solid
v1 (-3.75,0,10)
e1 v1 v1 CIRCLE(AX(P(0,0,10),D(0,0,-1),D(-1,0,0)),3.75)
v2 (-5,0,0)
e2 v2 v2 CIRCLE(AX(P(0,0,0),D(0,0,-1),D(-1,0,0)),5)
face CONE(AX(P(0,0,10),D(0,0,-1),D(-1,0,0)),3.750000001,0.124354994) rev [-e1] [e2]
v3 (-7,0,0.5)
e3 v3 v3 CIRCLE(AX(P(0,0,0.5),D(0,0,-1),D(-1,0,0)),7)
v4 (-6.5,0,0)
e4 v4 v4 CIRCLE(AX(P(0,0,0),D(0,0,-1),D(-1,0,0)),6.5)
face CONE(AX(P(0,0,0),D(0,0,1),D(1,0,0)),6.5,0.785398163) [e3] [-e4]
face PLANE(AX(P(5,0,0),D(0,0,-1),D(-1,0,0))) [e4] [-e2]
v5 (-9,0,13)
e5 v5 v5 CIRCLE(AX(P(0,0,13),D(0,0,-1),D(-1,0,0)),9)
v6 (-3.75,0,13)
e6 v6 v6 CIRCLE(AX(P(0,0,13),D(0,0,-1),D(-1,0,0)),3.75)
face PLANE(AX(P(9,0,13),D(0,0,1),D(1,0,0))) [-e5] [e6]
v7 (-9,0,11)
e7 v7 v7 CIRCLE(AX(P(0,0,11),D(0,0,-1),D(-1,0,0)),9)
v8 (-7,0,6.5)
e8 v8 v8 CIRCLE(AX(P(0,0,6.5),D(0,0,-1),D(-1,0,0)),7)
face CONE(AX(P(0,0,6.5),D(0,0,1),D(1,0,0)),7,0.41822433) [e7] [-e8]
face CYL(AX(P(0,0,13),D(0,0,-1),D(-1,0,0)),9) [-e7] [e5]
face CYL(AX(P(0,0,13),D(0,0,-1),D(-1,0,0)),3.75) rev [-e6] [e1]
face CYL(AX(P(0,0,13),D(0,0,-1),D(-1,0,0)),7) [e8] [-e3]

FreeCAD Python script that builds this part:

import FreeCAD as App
import Part
import Sketcher
from FreeCAD import Vector
Q = App.Units.Quantity


def add_polygon(sketch, points):
    """Adds a closed chain of lines whose ends are joined by coincident constraints."""
    first, n = sketch.GeometryCount, len(points)
    for a, b in zip(points, points[1:] + points[:1]):
        sketch.addGeometry(Part.LineSegment(App.Vector(*a, 0), App.Vector(*b, 0)), False)
    for i in range(n):
        sketch.addConstraint(Sketcher.Constraint("Coincident", first + i, 2, first + (i + 1) % n, 1))

doc = App.newDocument("Part")
body = doc.addObject("PartDesign::Body", "Body")

# Sketch on XZ plane
sketch1 = body.newObject("Sketcher::SketchObject", "Sketch")
sketch1.AttachmentSupport = (doc.getObject("XZ_Plane"), [""])
sketch1.MapMode = "FlatFace"
add_polygon(sketch1, [(7, 6.5), (9, 11), (9, 13), (3.75, 13), (3.75, 10), (5, 0), (6.5, 0), (7, 0.5)])  # lines 0-7
sketch1.addConstraint([
    Sketcher.Constraint("Vertical", 1),
    Sketcher.Constraint("Horizontal", 2),
    Sketcher.Constraint("Vertical", 3),
    Sketcher.Constraint("Horizontal", 5),
    Sketcher.Constraint("Vertical", 7),
    Sketcher.Constraint("PointOnObject", 4, 2, -1),
    Sketcher.Constraint("DistanceY", 1, 1, 1, 2, 2.0),
    Sketcher.Constraint("DistanceY", 3, 2, 3, 1, 3.0),
    Sketcher.Constraint("DistanceY", 7, 1, 7, 2, 6.0),
    Sketcher.Constraint("Angle", 6, Q("45 deg")),
    Sketcher.Constraint("DistanceX", 5, 1, 5, 2, 1.5),
    Sketcher.Constraint("DistanceX", -1, 1, 0, 2, 9.0),
    Sketcher.Constraint("DistanceY", -1, 1, 0, 2, 11.0),
    Sketcher.Constraint("DistanceX", -1, 1, 4, 2, 5.0),
    Sketcher.Constraint("DistanceX", -1, 1, 6, 2, 7.0),
    Sketcher.Constraint("DistanceX", 2, 2, 2, 1, 5.25),
])
revolution = body.newObject("PartDesign::Revolution", "Revolution")
revolution.Profile = sketch1
revolution.ReferenceAxis = (sketch1, ["V_Axis"])
revolution.Angle = 360

doc.recompute()
